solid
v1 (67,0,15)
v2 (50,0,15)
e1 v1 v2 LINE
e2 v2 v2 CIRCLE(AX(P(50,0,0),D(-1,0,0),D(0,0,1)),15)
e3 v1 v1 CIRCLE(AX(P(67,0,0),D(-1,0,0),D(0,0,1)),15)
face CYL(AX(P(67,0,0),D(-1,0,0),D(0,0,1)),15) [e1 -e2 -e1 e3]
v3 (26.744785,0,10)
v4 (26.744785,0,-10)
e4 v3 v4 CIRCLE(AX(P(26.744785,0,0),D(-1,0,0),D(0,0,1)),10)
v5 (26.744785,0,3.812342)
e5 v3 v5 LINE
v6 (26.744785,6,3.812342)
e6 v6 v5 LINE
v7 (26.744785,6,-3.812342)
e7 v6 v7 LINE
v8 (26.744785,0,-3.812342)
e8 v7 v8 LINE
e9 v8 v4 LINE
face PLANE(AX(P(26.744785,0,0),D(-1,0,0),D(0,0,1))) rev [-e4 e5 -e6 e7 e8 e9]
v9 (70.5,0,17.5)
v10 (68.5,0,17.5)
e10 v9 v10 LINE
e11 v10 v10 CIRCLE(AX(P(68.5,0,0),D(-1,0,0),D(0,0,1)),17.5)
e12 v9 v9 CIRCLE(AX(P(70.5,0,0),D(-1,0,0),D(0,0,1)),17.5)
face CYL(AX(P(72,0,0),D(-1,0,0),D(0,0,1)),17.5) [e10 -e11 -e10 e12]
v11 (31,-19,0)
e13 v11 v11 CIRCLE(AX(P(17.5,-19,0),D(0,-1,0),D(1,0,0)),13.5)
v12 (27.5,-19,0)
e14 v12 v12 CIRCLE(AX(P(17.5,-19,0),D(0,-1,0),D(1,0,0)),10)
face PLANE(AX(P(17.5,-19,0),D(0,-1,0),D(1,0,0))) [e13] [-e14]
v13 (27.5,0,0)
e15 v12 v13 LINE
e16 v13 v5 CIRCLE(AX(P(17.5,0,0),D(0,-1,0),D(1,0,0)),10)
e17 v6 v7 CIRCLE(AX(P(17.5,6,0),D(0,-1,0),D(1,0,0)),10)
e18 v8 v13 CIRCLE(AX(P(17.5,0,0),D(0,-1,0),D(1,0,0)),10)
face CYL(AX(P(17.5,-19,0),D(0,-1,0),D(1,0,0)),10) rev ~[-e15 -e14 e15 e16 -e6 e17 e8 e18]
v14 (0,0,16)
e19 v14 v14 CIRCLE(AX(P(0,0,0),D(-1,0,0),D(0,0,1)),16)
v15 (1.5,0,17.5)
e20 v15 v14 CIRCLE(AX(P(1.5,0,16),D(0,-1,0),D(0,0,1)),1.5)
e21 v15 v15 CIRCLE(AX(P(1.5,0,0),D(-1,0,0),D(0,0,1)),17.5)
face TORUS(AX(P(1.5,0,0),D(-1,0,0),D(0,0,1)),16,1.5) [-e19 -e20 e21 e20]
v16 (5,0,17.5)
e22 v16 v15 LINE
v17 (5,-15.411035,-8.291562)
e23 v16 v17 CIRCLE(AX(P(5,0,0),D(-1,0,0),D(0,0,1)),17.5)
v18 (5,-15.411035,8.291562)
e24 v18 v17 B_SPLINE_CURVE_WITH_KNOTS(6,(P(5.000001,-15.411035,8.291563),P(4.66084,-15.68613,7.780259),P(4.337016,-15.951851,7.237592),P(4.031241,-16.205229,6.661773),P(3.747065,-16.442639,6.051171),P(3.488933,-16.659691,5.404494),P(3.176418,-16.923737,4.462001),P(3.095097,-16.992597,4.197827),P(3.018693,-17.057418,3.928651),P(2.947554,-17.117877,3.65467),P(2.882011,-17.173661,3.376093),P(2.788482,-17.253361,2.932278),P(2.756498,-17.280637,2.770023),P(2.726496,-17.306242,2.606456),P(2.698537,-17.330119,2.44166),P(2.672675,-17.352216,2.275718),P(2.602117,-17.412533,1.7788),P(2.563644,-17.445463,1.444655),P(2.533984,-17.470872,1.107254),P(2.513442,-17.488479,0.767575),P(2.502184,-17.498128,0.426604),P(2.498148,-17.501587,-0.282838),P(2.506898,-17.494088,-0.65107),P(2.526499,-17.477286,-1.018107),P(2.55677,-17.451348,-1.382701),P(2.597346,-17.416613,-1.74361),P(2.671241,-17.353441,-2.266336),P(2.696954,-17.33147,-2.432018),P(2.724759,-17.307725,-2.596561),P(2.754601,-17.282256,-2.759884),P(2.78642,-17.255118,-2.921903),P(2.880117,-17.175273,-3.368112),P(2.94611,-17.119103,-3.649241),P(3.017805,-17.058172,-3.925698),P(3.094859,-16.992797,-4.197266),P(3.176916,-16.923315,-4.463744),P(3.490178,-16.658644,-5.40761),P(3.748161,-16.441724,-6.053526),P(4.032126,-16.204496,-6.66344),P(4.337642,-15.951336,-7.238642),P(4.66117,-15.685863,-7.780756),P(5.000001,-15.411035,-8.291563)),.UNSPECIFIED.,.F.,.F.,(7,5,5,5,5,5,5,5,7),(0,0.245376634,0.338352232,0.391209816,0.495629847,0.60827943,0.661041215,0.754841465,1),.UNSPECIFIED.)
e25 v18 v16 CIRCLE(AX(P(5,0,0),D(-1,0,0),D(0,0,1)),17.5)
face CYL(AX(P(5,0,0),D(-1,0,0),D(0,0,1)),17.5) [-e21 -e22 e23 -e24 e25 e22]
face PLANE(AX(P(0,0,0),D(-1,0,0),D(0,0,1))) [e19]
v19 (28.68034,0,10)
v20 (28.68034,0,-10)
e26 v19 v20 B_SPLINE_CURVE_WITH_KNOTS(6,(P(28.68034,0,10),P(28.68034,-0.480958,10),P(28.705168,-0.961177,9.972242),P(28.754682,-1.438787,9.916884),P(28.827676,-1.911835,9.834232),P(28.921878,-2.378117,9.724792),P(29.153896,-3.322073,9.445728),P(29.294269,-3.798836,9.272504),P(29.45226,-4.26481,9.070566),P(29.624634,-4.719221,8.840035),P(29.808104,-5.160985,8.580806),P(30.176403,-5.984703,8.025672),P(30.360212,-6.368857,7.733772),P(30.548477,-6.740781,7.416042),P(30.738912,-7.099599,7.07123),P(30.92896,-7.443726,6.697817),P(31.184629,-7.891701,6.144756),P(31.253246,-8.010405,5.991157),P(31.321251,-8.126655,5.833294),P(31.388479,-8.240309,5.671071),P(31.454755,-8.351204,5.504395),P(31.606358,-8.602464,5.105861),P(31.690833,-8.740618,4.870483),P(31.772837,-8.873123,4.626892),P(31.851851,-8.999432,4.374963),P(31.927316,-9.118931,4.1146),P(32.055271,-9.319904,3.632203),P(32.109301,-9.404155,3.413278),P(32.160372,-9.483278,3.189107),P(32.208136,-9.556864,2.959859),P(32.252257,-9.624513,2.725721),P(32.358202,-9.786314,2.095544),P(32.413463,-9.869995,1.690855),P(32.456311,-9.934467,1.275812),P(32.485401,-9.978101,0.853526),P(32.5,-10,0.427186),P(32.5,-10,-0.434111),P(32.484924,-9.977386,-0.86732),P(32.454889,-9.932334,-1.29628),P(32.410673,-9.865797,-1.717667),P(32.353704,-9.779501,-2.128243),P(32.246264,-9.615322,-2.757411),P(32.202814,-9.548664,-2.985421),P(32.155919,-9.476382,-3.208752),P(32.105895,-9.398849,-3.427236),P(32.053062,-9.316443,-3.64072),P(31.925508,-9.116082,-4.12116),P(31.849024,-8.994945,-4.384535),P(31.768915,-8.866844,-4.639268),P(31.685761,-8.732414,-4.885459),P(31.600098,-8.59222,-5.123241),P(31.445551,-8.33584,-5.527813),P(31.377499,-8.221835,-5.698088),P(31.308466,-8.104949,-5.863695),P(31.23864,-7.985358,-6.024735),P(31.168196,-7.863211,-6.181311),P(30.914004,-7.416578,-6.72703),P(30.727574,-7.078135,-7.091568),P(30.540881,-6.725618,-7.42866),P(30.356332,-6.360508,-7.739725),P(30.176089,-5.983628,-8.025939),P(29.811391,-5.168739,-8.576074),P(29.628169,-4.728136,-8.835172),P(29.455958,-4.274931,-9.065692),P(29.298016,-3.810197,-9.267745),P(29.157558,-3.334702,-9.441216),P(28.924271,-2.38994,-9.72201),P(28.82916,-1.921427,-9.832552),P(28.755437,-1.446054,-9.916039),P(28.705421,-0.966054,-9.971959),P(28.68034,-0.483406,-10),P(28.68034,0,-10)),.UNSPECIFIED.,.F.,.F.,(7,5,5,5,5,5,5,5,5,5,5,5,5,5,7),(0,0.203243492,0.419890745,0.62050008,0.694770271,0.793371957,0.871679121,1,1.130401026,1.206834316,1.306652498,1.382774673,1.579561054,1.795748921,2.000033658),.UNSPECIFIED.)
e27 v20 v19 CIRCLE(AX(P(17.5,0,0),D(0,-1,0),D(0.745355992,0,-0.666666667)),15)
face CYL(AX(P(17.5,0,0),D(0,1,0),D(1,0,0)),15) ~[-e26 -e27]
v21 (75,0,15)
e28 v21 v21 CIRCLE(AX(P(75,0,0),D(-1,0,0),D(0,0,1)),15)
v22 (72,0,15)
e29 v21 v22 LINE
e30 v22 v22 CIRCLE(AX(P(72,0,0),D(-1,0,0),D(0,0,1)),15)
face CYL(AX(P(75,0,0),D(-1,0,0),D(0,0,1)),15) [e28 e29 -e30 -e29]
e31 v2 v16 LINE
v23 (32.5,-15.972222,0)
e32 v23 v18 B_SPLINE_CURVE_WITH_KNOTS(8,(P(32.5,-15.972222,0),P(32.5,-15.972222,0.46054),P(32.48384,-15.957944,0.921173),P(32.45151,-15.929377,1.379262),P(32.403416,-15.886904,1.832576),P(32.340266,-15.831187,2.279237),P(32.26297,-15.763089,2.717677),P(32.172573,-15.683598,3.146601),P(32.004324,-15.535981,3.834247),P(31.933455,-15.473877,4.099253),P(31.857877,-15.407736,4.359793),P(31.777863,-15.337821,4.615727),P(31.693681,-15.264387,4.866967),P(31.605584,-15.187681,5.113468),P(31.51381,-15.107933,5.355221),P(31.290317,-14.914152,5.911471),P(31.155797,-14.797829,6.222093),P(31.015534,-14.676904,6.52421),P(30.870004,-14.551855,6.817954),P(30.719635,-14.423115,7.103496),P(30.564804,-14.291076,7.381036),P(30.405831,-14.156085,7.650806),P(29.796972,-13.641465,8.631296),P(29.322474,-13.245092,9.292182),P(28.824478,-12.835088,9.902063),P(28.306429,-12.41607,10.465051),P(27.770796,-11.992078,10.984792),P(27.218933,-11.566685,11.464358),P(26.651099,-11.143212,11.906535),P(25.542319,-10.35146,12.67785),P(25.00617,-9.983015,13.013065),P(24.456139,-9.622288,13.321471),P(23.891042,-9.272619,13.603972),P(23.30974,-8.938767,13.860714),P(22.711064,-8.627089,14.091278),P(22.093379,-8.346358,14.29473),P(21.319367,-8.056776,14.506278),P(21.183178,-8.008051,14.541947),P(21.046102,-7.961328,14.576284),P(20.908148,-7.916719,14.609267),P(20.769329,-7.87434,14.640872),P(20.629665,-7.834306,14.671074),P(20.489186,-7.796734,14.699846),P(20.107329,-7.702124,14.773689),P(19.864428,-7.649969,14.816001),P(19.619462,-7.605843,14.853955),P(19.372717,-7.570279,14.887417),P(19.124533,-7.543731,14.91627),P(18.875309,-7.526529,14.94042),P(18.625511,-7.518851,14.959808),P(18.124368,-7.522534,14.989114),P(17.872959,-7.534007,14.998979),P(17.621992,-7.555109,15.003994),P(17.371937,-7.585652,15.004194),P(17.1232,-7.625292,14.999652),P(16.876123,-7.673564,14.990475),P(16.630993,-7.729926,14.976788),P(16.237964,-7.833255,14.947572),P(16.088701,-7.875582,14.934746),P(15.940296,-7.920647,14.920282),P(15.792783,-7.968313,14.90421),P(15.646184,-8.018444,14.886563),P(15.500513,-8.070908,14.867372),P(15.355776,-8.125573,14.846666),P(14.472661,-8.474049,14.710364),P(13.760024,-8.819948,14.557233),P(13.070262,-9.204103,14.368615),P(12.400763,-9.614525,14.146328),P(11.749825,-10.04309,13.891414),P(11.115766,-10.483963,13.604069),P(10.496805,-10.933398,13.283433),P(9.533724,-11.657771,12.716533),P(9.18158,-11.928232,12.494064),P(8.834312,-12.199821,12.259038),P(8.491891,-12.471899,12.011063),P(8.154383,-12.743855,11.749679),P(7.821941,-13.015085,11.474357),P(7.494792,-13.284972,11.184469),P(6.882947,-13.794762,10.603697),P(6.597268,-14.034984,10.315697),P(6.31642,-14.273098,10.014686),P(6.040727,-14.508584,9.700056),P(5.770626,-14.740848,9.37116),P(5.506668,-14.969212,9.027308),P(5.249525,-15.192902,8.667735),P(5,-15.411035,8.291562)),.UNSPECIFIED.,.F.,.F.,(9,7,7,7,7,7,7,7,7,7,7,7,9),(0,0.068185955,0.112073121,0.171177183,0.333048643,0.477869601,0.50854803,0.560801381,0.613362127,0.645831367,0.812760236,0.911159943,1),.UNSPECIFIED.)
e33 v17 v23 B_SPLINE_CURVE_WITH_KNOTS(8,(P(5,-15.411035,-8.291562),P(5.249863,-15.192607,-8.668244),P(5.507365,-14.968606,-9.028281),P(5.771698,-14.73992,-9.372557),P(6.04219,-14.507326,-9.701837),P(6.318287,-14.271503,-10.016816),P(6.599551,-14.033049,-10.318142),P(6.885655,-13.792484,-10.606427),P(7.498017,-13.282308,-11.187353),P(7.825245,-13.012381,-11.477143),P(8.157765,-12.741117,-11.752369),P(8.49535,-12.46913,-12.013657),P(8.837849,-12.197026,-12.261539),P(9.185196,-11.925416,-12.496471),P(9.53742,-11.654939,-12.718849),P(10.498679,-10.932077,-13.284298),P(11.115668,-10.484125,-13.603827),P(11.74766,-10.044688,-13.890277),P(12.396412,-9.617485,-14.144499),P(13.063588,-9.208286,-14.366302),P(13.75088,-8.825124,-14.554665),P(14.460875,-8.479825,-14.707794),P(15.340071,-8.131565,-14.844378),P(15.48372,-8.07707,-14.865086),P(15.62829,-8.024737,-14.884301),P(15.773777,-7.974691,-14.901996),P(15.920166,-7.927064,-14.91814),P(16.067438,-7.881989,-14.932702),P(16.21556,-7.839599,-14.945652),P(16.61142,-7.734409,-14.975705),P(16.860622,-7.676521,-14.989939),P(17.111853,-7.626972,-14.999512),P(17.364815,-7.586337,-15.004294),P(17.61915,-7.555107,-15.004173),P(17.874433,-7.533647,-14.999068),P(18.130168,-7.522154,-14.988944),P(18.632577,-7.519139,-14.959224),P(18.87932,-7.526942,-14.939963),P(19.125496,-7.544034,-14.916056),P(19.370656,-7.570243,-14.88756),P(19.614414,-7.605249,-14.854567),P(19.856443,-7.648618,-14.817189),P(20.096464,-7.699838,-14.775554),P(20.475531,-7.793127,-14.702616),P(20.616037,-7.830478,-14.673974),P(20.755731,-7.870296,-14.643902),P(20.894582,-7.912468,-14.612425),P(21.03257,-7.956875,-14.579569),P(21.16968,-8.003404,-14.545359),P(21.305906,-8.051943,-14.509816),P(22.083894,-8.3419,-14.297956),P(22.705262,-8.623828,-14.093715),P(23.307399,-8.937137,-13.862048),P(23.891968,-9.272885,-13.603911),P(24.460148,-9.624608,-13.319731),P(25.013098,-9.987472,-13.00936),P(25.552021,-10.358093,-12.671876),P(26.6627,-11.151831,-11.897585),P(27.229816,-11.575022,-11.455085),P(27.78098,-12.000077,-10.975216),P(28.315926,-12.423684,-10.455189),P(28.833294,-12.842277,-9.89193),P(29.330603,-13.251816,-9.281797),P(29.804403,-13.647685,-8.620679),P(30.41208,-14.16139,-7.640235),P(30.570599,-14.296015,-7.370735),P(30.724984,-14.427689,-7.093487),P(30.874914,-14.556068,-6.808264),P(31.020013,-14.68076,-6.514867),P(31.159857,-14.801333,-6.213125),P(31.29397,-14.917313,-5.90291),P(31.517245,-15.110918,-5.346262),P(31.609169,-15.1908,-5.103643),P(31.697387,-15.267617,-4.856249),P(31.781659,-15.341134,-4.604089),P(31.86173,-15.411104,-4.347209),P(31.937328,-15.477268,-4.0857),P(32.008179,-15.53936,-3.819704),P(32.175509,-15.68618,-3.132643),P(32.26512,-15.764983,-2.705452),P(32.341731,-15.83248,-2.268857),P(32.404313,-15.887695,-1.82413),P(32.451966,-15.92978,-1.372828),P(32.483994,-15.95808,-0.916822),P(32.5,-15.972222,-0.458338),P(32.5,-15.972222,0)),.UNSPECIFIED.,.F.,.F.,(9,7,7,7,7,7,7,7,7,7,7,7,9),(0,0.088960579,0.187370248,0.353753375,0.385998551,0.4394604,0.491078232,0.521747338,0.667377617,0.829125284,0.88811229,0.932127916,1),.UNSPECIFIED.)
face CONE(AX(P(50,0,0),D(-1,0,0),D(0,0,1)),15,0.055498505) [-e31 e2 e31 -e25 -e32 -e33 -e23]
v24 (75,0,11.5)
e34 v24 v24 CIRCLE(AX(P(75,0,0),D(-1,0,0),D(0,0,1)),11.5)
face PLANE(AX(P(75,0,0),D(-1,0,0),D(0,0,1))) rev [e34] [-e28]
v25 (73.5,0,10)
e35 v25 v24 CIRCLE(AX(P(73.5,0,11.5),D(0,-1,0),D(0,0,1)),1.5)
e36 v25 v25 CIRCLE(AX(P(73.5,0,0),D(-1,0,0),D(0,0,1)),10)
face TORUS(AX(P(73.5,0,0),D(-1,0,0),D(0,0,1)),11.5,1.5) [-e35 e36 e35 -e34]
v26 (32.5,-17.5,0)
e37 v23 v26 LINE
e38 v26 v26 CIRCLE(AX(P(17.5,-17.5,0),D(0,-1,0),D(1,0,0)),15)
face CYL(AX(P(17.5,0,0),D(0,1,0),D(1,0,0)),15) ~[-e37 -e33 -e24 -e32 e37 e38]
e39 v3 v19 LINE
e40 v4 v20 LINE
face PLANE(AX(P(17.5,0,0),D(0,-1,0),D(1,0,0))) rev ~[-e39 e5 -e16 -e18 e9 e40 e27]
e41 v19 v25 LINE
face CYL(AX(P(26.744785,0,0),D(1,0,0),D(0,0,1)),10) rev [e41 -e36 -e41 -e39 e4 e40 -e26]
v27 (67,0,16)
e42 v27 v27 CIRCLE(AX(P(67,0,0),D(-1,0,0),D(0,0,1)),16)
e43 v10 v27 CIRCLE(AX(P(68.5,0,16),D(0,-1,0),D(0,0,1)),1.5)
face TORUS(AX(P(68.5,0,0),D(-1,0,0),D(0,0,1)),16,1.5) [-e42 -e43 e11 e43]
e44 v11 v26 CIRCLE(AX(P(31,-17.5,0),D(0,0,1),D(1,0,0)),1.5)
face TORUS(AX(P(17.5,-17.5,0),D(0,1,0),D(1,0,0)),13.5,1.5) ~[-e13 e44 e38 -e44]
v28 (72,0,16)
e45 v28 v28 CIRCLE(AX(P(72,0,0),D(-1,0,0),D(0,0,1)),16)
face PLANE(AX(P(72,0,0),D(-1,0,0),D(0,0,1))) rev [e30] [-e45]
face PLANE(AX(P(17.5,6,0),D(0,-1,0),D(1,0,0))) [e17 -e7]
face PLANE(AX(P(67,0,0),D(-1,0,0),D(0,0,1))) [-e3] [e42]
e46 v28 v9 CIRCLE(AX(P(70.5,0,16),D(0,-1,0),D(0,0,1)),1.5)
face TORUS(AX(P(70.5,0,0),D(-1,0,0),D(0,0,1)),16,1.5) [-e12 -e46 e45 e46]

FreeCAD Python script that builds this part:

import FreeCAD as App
import Part
import Sketcher

V = App.Vector
Q = App.Units.Quantity


def edges_at(feature, points):
    """Names of the edges that pass closest to the given points."""
    edges = feature.Shape.Edges
    near = lambda p: min(range(len(edges)), key=lambda i: edges[i].distToShape(Part.Vertex(*p))[0])
    return sorted({f"Edge{near(p) + 1}" for p in points})

doc = App.newDocument("Part")
params = doc.addObject("Spreadsheet::Sheet", "Params")
for row, (alias, value) in enumerate([
    ("sketch1_width", "3 mm"),
    ("sketch1_width2", "5 mm"),
    ("sketch1_width3", "17 mm"),
    ("sketch1_height", "10 mm"),
    ("sketch1_height2", "17.5 mm"),
    ("revolution_angle", "360 deg"),
    ("sketch2_diameter", "30 mm"),
    ("pad1_length", "19 mm"),
    ("sketch3_diameter", "20 mm"),
    ("pocket1_length", "25 mm"),
    ("fillet_radius", "1.5 mm"),
], start=1):
    params.set(f"A{row}", alias)
    params.set(f"B{row}", "=" + value)
    params.setAlias(f"B{row}", alias)

body = doc.addObject("PartDesign::Body", "Body")

sketch1 = body.newObject("Sketcher::SketchObject", "Sketch")
sketch1.AttachmentSupport = (doc.getObject("XZ_Plane"), [""])
sketch1.MapMode = "FlatFace"
sketch1.addGeometry([
    Part.LineSegment(V(0, 17.5, 0), V(0, 0, 0)),
    Part.LineSegment(V(0, 0, 0), V(26.744785, 0, 0)),
    Part.LineSegment(V(26.744785, 0, 0), V(26.744785, 10, 0)),
    Part.LineSegment(V(26.744785, 10, 0), V(75, 10, 0)),
    Part.LineSegment(V(75, 10, 0), V(75, 15, 0)),
    Part.LineSegment(V(75, 15, 0), V(72, 15, 0)),
    Part.LineSegment(V(72, 15, 0), V(72, 17.5, 0)),
    Part.LineSegment(V(72, 17.5, 0), V(67, 17.5, 0)),
    Part.LineSegment(V(67, 17.5, 0), V(67, 15, 0)),
    Part.LineSegment(V(67, 15, 0), V(50, 15, 0)),
    Part.LineSegment(V(50, 15, 0), V(5, 17.5, 0)),
    Part.LineSegment(V(5, 17.5, 0), V(0, 17.5, 0)),
], False)
sketch1.addConstraint([
    Sketcher.Constraint("Coincident", 0, 2, 1, 1),
    Sketcher.Constraint("Coincident", 1, 2, 2, 1),
    Sketcher.Constraint("Coincident", 2, 2, 3, 1),
    Sketcher.Constraint("Coincident", 3, 2, 4, 1),
    Sketcher.Constraint("Coincident", 4, 2, 5, 1),
    Sketcher.Constraint("Coincident", 5, 2, 6, 1),
    Sketcher.Constraint("Coincident", 6, 2, 7, 1),
    Sketcher.Constraint("Coincident", 7, 2, 8, 1),
    Sketcher.Constraint("Coincident", 8, 2, 9, 1),
    Sketcher.Constraint("Coincident", 9, 2, 10, 1),
    Sketcher.Constraint("Coincident", 10, 2, 11, 1),
    Sketcher.Constraint("Coincident", 11, 2, 0, 1),
    Sketcher.Constraint("Vertical", 0),
    Sketcher.Constraint("Horizontal", 1),
    Sketcher.Constraint("Vertical", 2),
    Sketcher.Constraint("Horizontal", 3),
    Sketcher.Constraint("Vertical", 4),
    Sketcher.Constraint("Horizontal", 5),
    Sketcher.Constraint("Vertical", 6),
    Sketcher.Constraint("Horizontal", 7),
    Sketcher.Constraint("Vertical", 8),
    Sketcher.Constraint("Horizontal", 9),
    Sketcher.Constraint("Horizontal", 11),
    Sketcher.Constraint("Coincident", 0, 2, -1, 1),
    Sketcher.Constraint("Horizontal", 5, 2, 8, 2),
    Sketcher.Constraint("Horizontal", 7, 2, 10, 2),
    Sketcher.Constraint("Equal", 7, 11),
    Sketcher.Constraint("Equal", 11, 4),
    Sketcher.Constraint("DistanceX", 5, 2, 5, 1, Q("3 mm")),
    Sketcher.Constraint("DistanceX", 7, 2, 7, 1, Q("5 mm")),
    Sketcher.Constraint("DistanceX", 9, 2, 9, 1, Q("17 mm")),
    Sketcher.Constraint("DistanceY", 2, 1, 2, 2, Q("10 mm")),
    Sketcher.Constraint("DistanceY", 0, 2, 0, 1, Q("17.5 mm")),
    Sketcher.Constraint("DistanceX", -1, 1, 3, 2, Q("75 mm")),
    Sketcher.Constraint("DistanceX", 1, 1, 1, 2, Q("26.744785 mm")),
])
sketch1.setExpression("Constraints[28]", "Params.sketch1_width")
sketch1.setExpression("Constraints[29]", "Params.sketch1_width2")
sketch1.setExpression("Constraints[30]", "Params.sketch1_width3")
sketch1.setExpression("Constraints[31]", "Params.sketch1_height")
sketch1.setExpression("Constraints[32]", "Params.sketch1_height2")
revolution = body.newObject("PartDesign::Revolution", "Revolution")
revolution.Profile = sketch1
revolution.ReferenceAxis = (sketch1, ["H_Axis"])
revolution.setExpression("Angle", "Params.revolution_angle")

sketch2 = body.newObject("Sketcher::SketchObject", "Sketch001")
sketch2.AttachmentSupport = (doc.getObject("XZ_Plane"), [""])
sketch2.MapMode = "FlatFace"
sketch2.addGeometry(Part.Circle(V(17.5, 0, 0), V(0, 0, 1), 15), False)
sketch2.addConstraint([
    Sketcher.Constraint("PointOnObject", 0, 3, -1),
    Sketcher.Constraint("Diameter", 0, Q("30 mm")),
    Sketcher.Constraint("DistanceX", -1, 1, 0, 3, Q("17.5 mm")),
])
sketch2.setExpression("Constraints[1]", "Params.sketch2_diameter")
pad1 = body.newObject("PartDesign::Pad", "Pad")
pad1.Profile = sketch2
pad1.setExpression("Length", "Params.pad1_length")

sketch3 = body.newObject("Sketcher::SketchObject", "Sketch002")
sketch3.AttachmentSupport = (doc.getObject("XZ_Plane"), [""])
sketch3.MapMode = "FlatFace"
sketch3.AttachmentOffset = App.Placement(V(0, 0, 19), App.Rotation())
sketch3.addGeometry(Part.Circle(V(17.5, 0, 0), V(0, 0, 1), 10), False)
sketch3.addConstraint([
    Sketcher.Constraint("PointOnObject", 0, 3, -1),
    Sketcher.Constraint("Diameter", 0, Q("20 mm")),
    Sketcher.Constraint("DistanceX", -1, 1, 0, 3, Q("17.5 mm")),
])
sketch3.setExpression("Constraints[1]", "Params.sketch3_diameter")
pocket1 = body.newObject("PartDesign::Pocket", "Pocket")
pocket1.Profile = sketch3
pocket1.setExpression("Length", "Params.pocket1_length")
doc.recompute()

fillet = body.newObject("PartDesign::Fillet", "Fillet")
fillet.Base = (pocket1, edges_at(pocket1, [
    (2.5, -19, 0),
    (0, 0, -17.5),
    (67, 0, -17.5),
    (72, 0, -17.5),
    (75, 0, -10),
]))
fillet.setExpression("Radius", "Params.fillet_radius")

doc.recompute()
